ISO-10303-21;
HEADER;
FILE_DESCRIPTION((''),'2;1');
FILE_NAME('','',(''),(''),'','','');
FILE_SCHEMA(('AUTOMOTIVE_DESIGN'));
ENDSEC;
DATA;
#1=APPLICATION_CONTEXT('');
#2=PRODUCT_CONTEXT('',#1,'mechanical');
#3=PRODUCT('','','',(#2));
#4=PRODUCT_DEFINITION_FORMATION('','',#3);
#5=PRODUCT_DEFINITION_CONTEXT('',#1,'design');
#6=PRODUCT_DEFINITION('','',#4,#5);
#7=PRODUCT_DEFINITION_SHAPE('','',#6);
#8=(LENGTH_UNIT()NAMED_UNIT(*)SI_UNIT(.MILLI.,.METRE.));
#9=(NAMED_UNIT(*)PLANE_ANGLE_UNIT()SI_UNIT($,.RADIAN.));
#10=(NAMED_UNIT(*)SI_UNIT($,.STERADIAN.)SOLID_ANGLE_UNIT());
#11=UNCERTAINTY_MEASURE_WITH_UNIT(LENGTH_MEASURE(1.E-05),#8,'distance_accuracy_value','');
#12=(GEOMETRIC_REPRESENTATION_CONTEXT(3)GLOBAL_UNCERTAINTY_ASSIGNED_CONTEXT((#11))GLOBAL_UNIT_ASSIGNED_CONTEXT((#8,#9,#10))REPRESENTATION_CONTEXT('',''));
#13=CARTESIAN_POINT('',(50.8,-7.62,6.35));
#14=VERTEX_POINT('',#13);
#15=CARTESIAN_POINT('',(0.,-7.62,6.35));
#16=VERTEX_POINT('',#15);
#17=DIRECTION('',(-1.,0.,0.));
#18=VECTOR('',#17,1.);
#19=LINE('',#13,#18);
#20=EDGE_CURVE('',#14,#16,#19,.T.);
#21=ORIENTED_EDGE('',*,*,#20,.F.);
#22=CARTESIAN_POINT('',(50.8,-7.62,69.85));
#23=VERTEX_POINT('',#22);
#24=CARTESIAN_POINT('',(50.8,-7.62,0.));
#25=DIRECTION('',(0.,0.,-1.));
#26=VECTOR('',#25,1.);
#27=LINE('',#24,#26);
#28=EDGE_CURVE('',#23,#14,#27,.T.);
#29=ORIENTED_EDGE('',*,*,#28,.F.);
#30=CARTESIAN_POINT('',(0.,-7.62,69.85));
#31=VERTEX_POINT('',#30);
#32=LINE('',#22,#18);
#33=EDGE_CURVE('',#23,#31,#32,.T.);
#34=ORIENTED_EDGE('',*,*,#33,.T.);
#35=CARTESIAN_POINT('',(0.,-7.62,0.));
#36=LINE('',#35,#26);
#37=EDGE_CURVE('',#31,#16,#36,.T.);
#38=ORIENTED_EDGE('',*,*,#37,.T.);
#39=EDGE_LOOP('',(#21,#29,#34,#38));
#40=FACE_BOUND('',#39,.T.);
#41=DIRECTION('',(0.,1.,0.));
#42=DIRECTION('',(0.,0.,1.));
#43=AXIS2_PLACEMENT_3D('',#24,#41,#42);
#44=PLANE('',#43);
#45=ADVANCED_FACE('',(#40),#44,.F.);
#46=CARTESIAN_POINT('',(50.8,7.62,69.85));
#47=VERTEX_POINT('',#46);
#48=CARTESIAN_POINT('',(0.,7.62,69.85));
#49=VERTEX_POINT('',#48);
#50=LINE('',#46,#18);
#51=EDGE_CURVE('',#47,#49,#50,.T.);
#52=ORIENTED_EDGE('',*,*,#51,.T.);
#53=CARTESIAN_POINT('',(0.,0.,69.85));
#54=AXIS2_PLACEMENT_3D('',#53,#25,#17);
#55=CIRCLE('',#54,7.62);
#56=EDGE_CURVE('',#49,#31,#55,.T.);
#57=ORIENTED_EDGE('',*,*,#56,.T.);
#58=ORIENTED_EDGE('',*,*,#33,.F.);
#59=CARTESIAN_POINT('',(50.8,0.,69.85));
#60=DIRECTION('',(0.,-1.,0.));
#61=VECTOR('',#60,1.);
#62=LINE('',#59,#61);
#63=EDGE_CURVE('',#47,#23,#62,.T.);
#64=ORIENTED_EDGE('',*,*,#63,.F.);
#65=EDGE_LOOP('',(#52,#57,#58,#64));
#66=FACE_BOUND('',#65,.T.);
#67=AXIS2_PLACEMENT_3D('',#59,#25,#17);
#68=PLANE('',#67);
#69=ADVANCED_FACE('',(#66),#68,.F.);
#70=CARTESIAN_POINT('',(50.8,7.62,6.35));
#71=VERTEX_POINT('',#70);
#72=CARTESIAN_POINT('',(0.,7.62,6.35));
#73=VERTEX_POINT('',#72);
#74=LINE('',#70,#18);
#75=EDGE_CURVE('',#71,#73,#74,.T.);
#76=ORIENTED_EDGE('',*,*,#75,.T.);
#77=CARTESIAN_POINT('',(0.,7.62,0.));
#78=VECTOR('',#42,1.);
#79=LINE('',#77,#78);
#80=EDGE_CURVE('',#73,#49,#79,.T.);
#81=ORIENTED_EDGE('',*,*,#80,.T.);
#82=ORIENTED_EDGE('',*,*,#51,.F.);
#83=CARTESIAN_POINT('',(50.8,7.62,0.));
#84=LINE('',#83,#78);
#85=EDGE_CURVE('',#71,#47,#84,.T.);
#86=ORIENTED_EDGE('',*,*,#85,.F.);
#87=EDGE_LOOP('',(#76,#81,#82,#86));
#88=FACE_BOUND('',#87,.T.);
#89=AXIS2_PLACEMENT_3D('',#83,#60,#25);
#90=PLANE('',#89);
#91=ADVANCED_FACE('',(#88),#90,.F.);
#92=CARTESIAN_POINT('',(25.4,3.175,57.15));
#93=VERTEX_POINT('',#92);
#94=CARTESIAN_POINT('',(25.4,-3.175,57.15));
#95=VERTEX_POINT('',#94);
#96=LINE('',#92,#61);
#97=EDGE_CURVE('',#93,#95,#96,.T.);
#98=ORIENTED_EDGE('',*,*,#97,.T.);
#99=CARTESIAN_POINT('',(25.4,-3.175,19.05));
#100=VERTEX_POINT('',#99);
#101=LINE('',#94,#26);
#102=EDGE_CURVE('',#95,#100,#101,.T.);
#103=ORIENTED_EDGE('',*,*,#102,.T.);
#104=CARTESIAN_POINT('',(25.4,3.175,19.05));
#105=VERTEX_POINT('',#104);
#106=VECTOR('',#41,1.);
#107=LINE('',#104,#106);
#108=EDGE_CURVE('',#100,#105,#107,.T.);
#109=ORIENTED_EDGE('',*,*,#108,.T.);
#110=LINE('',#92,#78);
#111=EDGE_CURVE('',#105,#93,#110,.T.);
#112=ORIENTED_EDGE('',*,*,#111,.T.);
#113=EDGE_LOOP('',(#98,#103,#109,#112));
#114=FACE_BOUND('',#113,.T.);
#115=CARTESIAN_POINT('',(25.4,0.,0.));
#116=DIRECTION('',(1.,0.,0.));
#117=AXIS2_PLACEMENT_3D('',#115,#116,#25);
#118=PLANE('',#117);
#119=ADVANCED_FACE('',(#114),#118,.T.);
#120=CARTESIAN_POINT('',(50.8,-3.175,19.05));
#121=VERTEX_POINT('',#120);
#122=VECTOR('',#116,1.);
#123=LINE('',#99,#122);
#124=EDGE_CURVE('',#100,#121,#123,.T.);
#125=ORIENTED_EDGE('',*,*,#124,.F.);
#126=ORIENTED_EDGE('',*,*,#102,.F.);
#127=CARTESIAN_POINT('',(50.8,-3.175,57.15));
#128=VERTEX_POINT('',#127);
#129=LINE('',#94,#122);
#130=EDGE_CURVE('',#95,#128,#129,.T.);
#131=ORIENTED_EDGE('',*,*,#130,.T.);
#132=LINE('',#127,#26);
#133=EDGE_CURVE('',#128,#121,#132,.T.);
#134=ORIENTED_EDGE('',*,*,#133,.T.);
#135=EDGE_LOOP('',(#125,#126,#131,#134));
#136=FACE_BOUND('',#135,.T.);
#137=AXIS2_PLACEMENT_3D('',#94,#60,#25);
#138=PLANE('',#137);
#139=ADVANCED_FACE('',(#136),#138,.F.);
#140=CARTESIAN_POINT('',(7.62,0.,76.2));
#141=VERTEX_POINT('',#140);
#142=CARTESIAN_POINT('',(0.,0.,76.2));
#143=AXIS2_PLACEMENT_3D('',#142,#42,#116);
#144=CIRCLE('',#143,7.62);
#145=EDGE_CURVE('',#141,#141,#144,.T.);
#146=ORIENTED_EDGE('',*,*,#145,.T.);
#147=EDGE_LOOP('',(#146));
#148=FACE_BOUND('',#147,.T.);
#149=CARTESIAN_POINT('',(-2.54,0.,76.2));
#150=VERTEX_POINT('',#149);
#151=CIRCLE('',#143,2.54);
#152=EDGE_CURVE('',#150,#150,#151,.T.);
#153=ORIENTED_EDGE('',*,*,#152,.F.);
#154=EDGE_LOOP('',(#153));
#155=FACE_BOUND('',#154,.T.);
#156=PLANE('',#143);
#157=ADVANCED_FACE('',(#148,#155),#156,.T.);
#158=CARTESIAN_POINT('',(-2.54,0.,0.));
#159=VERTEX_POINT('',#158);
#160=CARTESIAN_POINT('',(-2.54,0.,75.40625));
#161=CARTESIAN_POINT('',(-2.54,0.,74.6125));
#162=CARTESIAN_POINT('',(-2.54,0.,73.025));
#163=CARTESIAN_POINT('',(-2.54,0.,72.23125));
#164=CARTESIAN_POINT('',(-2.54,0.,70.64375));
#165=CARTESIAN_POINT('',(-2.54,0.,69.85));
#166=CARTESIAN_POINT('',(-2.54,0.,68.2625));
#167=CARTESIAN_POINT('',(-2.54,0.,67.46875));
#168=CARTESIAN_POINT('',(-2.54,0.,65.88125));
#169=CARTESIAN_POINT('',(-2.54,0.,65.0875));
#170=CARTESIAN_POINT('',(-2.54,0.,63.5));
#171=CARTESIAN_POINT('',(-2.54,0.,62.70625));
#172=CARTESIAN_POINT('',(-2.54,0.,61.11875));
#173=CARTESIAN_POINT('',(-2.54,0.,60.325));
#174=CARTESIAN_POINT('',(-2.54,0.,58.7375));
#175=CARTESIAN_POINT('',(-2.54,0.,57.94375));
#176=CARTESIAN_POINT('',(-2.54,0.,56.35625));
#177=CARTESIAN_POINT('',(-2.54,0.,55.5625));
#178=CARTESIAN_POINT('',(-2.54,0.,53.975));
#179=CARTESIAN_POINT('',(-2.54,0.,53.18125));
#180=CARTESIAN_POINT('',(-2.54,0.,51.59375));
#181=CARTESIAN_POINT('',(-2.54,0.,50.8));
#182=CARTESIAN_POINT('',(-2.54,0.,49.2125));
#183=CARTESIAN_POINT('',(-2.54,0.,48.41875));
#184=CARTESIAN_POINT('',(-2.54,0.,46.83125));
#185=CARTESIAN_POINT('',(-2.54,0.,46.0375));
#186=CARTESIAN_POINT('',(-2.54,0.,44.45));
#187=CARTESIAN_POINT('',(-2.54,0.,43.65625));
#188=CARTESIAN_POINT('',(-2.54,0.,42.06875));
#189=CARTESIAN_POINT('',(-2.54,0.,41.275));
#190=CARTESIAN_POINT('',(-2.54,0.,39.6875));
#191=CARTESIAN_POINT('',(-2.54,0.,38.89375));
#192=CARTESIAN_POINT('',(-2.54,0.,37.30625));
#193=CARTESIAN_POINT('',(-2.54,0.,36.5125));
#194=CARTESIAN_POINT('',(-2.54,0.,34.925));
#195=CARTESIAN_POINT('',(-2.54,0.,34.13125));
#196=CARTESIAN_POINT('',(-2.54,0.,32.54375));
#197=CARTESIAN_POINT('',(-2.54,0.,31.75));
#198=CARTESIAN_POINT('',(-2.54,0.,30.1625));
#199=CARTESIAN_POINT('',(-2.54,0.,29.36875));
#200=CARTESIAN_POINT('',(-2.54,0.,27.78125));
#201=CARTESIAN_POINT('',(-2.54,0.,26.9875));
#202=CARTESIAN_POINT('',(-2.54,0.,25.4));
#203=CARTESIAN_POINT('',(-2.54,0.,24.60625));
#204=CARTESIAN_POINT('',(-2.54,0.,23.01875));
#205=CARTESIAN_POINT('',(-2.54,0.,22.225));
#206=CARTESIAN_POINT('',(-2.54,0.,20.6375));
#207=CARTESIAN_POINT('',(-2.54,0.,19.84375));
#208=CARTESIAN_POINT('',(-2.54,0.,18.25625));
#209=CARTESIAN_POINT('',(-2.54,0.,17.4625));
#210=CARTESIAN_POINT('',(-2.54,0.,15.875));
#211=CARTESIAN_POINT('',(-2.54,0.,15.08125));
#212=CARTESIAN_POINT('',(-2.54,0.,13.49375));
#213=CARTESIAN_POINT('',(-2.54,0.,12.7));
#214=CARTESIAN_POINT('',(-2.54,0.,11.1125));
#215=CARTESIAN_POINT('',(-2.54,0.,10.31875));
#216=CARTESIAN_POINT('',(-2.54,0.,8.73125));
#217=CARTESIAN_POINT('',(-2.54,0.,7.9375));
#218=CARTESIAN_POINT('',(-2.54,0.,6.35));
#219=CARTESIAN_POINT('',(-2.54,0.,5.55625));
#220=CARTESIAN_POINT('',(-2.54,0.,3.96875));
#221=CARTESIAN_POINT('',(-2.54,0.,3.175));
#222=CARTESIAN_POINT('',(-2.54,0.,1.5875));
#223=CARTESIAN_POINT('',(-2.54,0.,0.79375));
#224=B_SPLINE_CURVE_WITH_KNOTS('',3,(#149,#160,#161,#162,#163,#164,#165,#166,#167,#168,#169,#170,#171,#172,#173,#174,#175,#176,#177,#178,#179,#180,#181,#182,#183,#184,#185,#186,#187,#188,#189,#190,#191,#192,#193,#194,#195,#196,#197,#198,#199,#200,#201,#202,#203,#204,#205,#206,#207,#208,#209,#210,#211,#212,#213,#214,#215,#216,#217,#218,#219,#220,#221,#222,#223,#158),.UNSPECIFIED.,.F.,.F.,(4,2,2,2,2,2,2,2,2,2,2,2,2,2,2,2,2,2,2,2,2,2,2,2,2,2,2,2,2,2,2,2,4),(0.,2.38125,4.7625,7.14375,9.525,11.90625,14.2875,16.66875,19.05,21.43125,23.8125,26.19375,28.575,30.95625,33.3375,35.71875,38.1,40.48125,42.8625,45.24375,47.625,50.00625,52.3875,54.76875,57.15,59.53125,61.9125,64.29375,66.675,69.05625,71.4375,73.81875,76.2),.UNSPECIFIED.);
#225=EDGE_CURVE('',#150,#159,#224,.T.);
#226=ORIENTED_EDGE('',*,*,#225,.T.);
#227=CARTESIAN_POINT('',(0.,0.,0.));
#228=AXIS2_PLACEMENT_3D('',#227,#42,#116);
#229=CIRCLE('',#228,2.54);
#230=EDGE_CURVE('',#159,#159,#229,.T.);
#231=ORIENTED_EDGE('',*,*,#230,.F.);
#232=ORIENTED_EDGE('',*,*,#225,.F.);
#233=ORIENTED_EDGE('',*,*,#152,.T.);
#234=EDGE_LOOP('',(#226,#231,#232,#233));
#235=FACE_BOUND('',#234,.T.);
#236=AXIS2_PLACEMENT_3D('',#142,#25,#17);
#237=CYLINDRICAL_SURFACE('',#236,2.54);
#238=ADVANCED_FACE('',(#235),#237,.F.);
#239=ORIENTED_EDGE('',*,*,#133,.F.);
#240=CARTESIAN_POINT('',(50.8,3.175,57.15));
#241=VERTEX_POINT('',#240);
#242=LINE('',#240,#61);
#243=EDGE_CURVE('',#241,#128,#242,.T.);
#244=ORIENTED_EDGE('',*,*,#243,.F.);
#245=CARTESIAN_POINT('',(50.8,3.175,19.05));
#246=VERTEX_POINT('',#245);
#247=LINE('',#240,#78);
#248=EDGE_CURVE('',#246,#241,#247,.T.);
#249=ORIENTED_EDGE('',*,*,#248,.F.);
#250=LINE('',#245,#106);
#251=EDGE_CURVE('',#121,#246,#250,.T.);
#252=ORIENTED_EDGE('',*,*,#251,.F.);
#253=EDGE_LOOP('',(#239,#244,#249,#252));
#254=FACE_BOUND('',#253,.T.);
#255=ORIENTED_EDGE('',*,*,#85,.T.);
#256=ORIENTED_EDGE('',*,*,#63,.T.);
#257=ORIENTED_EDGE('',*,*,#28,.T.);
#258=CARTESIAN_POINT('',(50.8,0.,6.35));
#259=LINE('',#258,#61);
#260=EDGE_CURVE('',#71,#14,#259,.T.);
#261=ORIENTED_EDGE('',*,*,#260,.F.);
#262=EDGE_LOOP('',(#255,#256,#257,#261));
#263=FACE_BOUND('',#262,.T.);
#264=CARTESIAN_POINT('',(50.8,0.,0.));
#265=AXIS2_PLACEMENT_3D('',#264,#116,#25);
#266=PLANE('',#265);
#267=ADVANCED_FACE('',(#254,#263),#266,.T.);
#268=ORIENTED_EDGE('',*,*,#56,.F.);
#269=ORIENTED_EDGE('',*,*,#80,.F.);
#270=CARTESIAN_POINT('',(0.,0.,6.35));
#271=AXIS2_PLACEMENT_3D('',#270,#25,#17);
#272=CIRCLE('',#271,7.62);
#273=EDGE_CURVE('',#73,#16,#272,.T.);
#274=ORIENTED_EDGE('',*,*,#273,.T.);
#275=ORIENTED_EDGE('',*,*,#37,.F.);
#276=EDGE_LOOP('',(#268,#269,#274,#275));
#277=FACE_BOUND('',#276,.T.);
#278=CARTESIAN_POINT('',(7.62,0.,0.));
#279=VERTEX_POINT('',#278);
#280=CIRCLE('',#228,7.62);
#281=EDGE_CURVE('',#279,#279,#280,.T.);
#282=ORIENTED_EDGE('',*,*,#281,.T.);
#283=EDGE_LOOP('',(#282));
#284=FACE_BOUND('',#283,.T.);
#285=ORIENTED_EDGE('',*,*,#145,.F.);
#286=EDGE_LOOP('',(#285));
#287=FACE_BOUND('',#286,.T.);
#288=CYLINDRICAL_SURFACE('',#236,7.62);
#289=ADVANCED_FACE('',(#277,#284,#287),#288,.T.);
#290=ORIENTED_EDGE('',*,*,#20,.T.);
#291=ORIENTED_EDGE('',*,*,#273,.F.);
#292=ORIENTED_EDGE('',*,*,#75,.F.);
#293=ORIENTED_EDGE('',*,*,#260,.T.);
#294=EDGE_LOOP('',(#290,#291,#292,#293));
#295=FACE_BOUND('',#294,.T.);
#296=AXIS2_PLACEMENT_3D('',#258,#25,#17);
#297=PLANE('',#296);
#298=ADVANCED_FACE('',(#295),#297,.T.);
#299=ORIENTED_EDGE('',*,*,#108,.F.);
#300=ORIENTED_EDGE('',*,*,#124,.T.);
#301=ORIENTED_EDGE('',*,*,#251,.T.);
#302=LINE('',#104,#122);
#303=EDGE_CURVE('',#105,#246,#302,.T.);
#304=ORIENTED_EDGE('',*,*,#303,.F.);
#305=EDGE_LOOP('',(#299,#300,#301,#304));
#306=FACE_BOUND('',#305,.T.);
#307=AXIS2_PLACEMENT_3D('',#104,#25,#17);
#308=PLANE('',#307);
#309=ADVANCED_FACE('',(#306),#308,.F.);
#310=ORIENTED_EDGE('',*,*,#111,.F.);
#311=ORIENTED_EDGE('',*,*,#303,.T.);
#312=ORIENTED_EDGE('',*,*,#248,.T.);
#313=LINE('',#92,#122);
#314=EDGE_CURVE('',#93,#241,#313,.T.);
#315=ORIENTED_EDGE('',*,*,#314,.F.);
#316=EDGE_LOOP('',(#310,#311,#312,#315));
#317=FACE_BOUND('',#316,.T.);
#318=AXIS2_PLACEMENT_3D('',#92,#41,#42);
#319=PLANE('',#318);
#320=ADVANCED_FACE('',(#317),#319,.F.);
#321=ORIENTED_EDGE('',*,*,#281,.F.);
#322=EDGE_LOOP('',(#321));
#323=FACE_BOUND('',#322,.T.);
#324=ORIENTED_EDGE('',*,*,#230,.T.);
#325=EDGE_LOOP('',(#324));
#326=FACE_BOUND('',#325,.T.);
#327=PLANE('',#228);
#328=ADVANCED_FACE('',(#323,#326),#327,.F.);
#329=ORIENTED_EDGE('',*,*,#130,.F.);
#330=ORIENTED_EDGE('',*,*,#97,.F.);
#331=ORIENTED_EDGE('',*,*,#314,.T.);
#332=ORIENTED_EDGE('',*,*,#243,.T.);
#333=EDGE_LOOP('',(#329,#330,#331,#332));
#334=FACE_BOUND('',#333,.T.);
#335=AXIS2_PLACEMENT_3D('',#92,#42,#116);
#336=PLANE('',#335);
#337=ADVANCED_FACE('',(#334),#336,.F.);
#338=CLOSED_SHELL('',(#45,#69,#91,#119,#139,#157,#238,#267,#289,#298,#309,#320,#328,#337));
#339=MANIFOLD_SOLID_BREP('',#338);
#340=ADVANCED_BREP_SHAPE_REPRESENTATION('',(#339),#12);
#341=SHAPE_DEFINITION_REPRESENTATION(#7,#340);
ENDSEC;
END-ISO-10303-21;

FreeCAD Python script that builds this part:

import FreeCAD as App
import Part
import Sketcher
from FreeCAD import Vector
Q = App.Units.Quantity

doc = App.newDocument("Part")
params = doc.addObject("Spreadsheet::Sheet", "Params")
for row, (alias, value) in enumerate([
    ("sketch1_diameter", "0.6 in"),
    ("sketch1_diameter2", "0.2 in"),
    ("pad1_length", "3 in"),
    ("sketch2_width", "0.6 in"),
    ("sketch2_height", "2.5 in"),
    ("pad2_length", "2 in"),
    ("sketch3_height", "1.5 in"),
    ("sketch3_width", "0.25 in"),
    ("pocket1_length", "1 in"),
    ("sketch4_diameter", "0.2 in"),
], start=1):
    params.set(f"A{row}", alias)
    params.set(f"B{row}", "=" + value)
    params.setAlias(f"B{row}", alias)

body = doc.addObject("PartDesign::Body", "Body")

# Sketch on XY plane
sketch1 = body.newObject("Sketcher::SketchObject", "Sketch")
sketch1.AttachmentSupport = (doc.getObject("XY_Plane"), [""])
sketch1.MapMode = "FlatFace"
sketch1.addGeometry([
    Part.Circle(Vector(0, 0, 0), Vector(0, 0, 1), 7.6),
    Part.Circle(Vector(0, 0, 0), Vector(0, 0, 1), 2.5),
], False)
sketch1.addConstraint([
    Sketcher.Constraint("Coincident", 0, 3, -1, 1),
    Sketcher.Constraint("Coincident", 1, 3, -1, 1),
    Sketcher.Constraint("Diameter", 0, Q("0.6 in")),
    Sketcher.Constraint("Diameter", 1, Q("0.2 in")),
])
sketch1.setExpression("Constraints[2]", "Params.sketch1_diameter")
sketch1.setExpression("Constraints[3]", "Params.sketch1_diameter2")
pad1 = body.newObject("PartDesign::Pad", "Pad")
pad1.Profile = sketch1
pad1.setExpression("Length", "Params.pad1_length")

# Sketch on YZ plane
sketch2 = body.newObject("Sketcher::SketchObject", "Sketch001")
sketch2.AttachmentSupport = (doc.getObject("YZ_Plane"), [""])
sketch2.MapMode = "FlatFace"
sketch2.addGeometry([
    Part.LineSegment(Vector(8, 70, 0), Vector(-8, 70, 0)),
    Part.LineSegment(Vector(-8, 70, 0), Vector(-8, 6, 0)),
    Part.LineSegment(Vector(-8, 6, 0), Vector(8, 6, 0)),
    Part.LineSegment(Vector(8, 6, 0), Vector(8, 70, 0)),
], False)
sketch2.addConstraint([
    Sketcher.Constraint("Coincident", 0, 2, 1, 1),
    Sketcher.Constraint("Coincident", 1, 2, 2, 1),
    Sketcher.Constraint("Coincident", 2, 2, 3, 1),
    Sketcher.Constraint("Coincident", 3, 2, 0, 1),
    Sketcher.Constraint("Horizontal", 0),
    Sketcher.Constraint("Vertical", 1),
    Sketcher.Constraint("Horizontal", 2),
    Sketcher.Constraint("Vertical", 3),
    Sketcher.Constraint("DistanceX", 0, 2, 0, 1, Q("0.6 in")),
    Sketcher.Constraint("DistanceY", 1, 2, 1, 1, Q("2.5 in")),
    Sketcher.Constraint("DistanceX", 0, 2, -1, 1, Q("0.3 in")),
    Sketcher.Constraint("DistanceY", -1, 1, 0, 2, Q("2.75 in")),
])
sketch2.setExpression("Constraints[8]", "Params.sketch2_width")
sketch2.setExpression("Constraints[9]", "Params.sketch2_height")
pad2 = body.newObject("PartDesign::Pad", "Pad001")
pad2.Profile = sketch2
pad2.setExpression("Length", "Params.pad2_length")

# Sketch on YZ plane
sketch3 = body.newObject("Sketcher::SketchObject", "Sketch002")
sketch3.AttachmentSupport = (doc.getObject("YZ_Plane"), [""])
sketch3.MapMode = "FlatFace"
sketch3.AttachmentOffset = App.Placement(Vector(0, 0, 2 * 25.4), App.Rotation())
sketch3.addGeometry([
    Part.LineSegment(Vector(3, 57, 0), Vector(-3, 57, 0)),
    Part.LineSegment(Vector(-3, 57, 0), Vector(-3, 19, 0)),
    Part.LineSegment(Vector(-3, 19, 0), Vector(3, 19, 0)),
    Part.LineSegment(Vector(3, 19, 0), Vector(3, 57, 0)),
], False)
sketch3.addConstraint([
    Sketcher.Constraint("Coincident", 0, 2, 1, 1),
    Sketcher.Constraint("Coincident", 1, 2, 2, 1),
    Sketcher.Constraint("Coincident", 2, 2, 3, 1),
    Sketcher.Constraint("Coincident", 3, 2, 0, 1),
    Sketcher.Constraint("Horizontal", 0),
    Sketcher.Constraint("Vertical", 1),
    Sketcher.Constraint("Horizontal", 2),
    Sketcher.Constraint("Vertical", 3),
    Sketcher.Constraint("DistanceY", 1, 2, 1, 1, Q("1.5 in")),
    Sketcher.Constraint("DistanceX", 0, 2, 0, 1, Q("0.25 in")),
    Sketcher.Constraint("DistanceY", -1, 1, 0, 2, Q("2.25 in")),
    Sketcher.Constraint("DistanceX", 0, 2, -1, 1, Q("0.125 in")),
])
sketch3.setExpression("Constraints[8]", "Params.sketch3_height")
sketch3.setExpression("Constraints[9]", "Params.sketch3_width")
pocket1 = body.newObject("PartDesign::Pocket", "Pocket")
pocket1.Profile = sketch3
pocket1.setExpression("Length", "Params.pocket1_length")

# Sketch on XY plane
sketch4 = body.newObject("Sketcher::SketchObject", "Sketch003")
sketch4.AttachmentSupport = (doc.getObject("XY_Plane"), [""])
sketch4.MapMode = "FlatFace"
sketch4.addGeometry(Part.Circle(Vector(0, 0, 0), Vector(0, 0, 1), 2.5), False)
sketch4.addConstraint([
    Sketcher.Constraint("Coincident", 0, 3, -1, 1),
    Sketcher.Constraint("Diameter", 0, Q("0.2 in")),
])
sketch4.setExpression("Constraints[1]", "Params.sketch4_diameter")
pocket2 = body.newObject("PartDesign::Pocket", "Pocket001")
pocket2.Profile = sketch4
pocket2.Type = "ThroughAll"
pocket2.Midplane = True

doc.recompute()
